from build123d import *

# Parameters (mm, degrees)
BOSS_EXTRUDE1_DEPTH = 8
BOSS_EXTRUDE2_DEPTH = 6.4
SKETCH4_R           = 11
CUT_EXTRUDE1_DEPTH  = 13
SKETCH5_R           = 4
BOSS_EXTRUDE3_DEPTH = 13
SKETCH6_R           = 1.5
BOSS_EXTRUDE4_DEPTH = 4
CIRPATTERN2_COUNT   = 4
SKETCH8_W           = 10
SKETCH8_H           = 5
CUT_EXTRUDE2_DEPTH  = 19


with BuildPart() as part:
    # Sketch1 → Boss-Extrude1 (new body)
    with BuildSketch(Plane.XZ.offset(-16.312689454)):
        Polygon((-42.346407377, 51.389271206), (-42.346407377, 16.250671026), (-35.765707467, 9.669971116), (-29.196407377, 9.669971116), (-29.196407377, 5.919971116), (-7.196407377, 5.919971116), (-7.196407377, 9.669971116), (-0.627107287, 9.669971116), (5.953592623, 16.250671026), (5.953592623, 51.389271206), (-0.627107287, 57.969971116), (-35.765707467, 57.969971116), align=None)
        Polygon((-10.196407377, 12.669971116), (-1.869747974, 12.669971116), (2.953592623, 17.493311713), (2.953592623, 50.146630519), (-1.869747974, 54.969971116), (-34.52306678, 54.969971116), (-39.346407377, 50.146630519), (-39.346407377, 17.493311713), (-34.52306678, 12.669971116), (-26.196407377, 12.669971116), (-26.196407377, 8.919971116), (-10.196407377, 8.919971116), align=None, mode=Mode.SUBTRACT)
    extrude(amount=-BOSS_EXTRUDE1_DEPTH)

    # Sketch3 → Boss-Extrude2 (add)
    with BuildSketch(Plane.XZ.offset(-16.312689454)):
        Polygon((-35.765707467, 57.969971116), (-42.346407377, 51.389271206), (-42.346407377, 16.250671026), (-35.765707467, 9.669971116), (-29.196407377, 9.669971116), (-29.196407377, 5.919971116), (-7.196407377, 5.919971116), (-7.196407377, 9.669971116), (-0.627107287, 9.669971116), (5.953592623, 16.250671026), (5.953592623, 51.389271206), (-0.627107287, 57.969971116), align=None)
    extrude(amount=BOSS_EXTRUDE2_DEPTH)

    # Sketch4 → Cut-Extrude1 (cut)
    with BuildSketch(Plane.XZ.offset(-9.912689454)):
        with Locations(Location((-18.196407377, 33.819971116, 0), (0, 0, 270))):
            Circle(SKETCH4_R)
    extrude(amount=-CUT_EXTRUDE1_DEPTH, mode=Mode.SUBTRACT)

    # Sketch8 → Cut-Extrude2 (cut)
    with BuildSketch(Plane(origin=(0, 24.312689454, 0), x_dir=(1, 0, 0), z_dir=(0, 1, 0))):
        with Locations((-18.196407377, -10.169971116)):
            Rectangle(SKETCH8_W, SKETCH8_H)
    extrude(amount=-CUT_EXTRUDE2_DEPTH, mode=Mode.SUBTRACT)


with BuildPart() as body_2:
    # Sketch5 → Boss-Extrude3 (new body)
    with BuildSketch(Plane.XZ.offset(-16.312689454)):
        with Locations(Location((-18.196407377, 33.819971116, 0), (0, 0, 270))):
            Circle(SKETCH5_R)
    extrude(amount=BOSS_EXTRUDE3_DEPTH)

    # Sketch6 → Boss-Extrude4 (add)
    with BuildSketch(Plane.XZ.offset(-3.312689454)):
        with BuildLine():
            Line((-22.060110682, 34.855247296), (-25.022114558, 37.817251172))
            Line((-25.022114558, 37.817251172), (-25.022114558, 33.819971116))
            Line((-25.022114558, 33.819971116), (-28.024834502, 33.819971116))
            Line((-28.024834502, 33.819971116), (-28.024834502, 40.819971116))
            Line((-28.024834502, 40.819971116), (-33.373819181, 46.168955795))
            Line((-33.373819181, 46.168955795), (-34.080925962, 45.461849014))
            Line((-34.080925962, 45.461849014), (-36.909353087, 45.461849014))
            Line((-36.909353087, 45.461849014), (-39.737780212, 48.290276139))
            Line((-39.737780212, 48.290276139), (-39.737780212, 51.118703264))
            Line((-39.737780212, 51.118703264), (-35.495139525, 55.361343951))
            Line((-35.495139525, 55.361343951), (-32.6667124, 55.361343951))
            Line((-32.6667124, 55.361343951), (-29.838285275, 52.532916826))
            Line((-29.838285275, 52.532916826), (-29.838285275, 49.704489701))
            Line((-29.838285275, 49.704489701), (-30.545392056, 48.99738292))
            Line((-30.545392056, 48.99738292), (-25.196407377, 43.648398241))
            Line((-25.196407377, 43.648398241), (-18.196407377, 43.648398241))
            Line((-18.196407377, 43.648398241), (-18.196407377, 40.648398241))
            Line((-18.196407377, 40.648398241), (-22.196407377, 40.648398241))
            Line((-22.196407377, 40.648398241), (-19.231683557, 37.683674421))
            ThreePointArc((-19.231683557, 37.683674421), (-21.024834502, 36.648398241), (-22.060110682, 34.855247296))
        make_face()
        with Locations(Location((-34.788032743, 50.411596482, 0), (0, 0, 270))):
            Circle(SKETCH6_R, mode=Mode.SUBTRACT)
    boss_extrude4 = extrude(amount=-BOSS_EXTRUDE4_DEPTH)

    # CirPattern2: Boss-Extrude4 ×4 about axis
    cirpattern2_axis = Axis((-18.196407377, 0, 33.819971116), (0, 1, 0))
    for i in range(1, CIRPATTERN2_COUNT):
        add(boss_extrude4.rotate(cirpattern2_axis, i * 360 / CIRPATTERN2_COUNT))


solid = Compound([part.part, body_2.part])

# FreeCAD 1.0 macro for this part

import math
import FreeCAD as App
import Part
import Sketcher

V = App.Vector
Q = App.Units.Quantity

doc = App.newDocument("Part")
params = doc.addObject("Spreadsheet::Sheet", "Params")
for row, (alias, value) in enumerate([
    ("sketch1_width", "22 mm"),
    ("sketch1_width2", "16 mm"),
    ("sketch1_height", "3.75 mm"),
    ("pad1_length", "8 mm"),
    ("sketch2_width", "22 mm"),
    ("sketch2_height", "3.75 mm"),
    ("pad2_length", "6.4 mm"),
    ("sketch3_diameter", "22 mm"),
    ("pocket1_length", "13 mm"),
    ("sketch4_width", "10 mm"),
    ("sketch4_height", "5 mm"),
    ("pocket2_length", "19 mm"),
    ("sketch5_diameter", "8 mm"),
    ("pad3_length", "13 mm"),
    ("sketch6_diameter", "3 mm"),
    ("sketch6_radius", "4 mm"),
    ("sketch6_width", "4 mm"),
    ("sketch6_width2", "7 mm"),
    ("sketch6_height", "3 mm"),
    ("pad4_length", "4 mm"),
], start=1):
    params.set(f"A{row}", alias)
    params.set(f"B{row}", "=" + value)
    params.setAlias(f"B{row}", alias)

body = doc.addObject("PartDesign::Body", "Body")

# Sketch on XZ plane
sketch1 = body.newObject("Sketcher::SketchObject", "Sketch")
sketch1.AttachmentSupport = (doc.getObject("XZ_Plane"), [""])
sketch1.MapMode = "FlatFace"
sketch1.AttachmentOffset = App.Placement(V(0, 0, -16.312689), App.Rotation())
sketch1.addGeometry(Part.LineSegment(V(-42.3, 51.4, 0), V(-42.3, 16.3, 0)), False)
sketch1.addGeometry(Part.LineSegment(V(-42.3, 16.3, 0), V(-35.8, 9.7, 0)), False)
sketch1.addGeometry(Part.LineSegment(V(-35.8, 9.7, 0), V(-29.2, 9.7, 0)), False)
sketch1.addGeometry(Part.LineSegment(V(-29.2, 9.7, 0), V(-29.2, 5.9, 0)), False)
sketch1.addGeometry(Part.LineSegment(V(-29.2, 5.9, 0), V(-7.2, 5.9, 0)), False)
sketch1.addGeometry(Part.LineSegment(V(-7.2, 5.9, 0), V(-7.2, 9.7, 0)), False)
sketch1.addGeometry(Part.LineSegment(V(-7.2, 9.7, 0), V(-0.6, 9.7, 0)), False)
sketch1.addGeometry(Part.LineSegment(V(-0.6, 9.7, 0), V(6, 16.3, 0)), False)
sketch1.addGeometry(Part.LineSegment(V(6, 16.3, 0), V(6, 51.4, 0)), False)
sketch1.addGeometry(Part.LineSegment(V(6, 51.4, 0), V(-0.6, 58, 0)), False)
sketch1.addGeometry(Part.LineSegment(V(-0.6, 58, 0), V(-35.8, 58, 0)), False)
sketch1.addGeometry(Part.LineSegment(V(-35.8, 58, 0), V(-42.3, 51.4, 0)), False)
sketch1.addGeometry(Part.LineSegment(V(-1.9, 12.7, 0), V(-10.2, 12.7, 0)), False)
sketch1.addGeometry(Part.LineSegment(V(-10.2, 12.7, 0), V(-10.2, 8.9, 0)), False)
sketch1.addGeometry(Part.LineSegment(V(-10.2, 8.9, 0), V(-26.2, 8.9, 0)), False)
sketch1.addGeometry(Part.LineSegment(V(-26.2, 8.9, 0), V(-26.2, 12.7, 0)), False)
sketch1.addGeometry(Part.LineSegment(V(-26.2, 12.7, 0), V(-34.5, 12.7, 0)), False)
sketch1.addGeometry(Part.LineSegment(V(-34.5, 12.7, 0), V(-39.3, 17.5, 0)), False)
sketch1.addGeometry(Part.LineSegment(V(-39.3, 17.5, 0), V(-39.3, 50.1, 0)), False)
sketch1.addGeometry(Part.LineSegment(V(-39.3, 50.1, 0), V(-34.5, 55, 0)), False)
sketch1.addGeometry(Part.LineSegment(V(-34.5, 55, 0), V(-1.9, 55, 0)), False)
sketch1.addGeometry(Part.LineSegment(V(-1.9, 55, 0), V(3, 50.1, 0)), False)
sketch1.addGeometry(Part.LineSegment(V(3, 50.1, 0), V(3, 17.5, 0)), False)
sketch1.addGeometry(Part.LineSegment(V(3, 17.5, 0), V(-1.9, 12.7, 0)), False)
sketch1.addConstraint(Sketcher.Constraint("Coincident", 0, 2, 1, 1))
sketch1.addConstraint(Sketcher.Constraint("Coincident", 1, 2, 2, 1))
sketch1.addConstraint(Sketcher.Constraint("Coincident", 2, 2, 3, 1))
sketch1.addConstraint(Sketcher.Constraint("Coincident", 3, 2, 4, 1))
sketch1.addConstraint(Sketcher.Constraint("Coincident", 4, 2, 5, 1))
sketch1.addConstraint(Sketcher.Constraint("Coincident", 5, 2, 6, 1))
sketch1.addConstraint(Sketcher.Constraint("Coincident", 6, 2, 7, 1))
sketch1.addConstraint(Sketcher.Constraint("Coincident", 7, 2, 8, 1))
sketch1.addConstraint(Sketcher.Constraint("Coincident", 8, 2, 9, 1))
sketch1.addConstraint(Sketcher.Constraint("Coincident", 9, 2, 10, 1))
sketch1.addConstraint(Sketcher.Constraint("Coincident", 10, 2, 11, 1))
sketch1.addConstraint(Sketcher.Constraint("Coincident", 11, 2, 0, 1))
sketch1.addConstraint(Sketcher.Constraint("Coincident", 12, 2, 13, 1))
sketch1.addConstraint(Sketcher.Constraint("Coincident", 13, 2, 14, 1))
sketch1.addConstraint(Sketcher.Constraint("Coincident", 14, 2, 15, 1))
sketch1.addConstraint(Sketcher.Constraint("Coincident", 15, 2, 16, 1))
sketch1.addConstraint(Sketcher.Constraint("Coincident", 16, 2, 17, 1))
sketch1.addConstraint(Sketcher.Constraint("Coincident", 17, 2, 18, 1))
sketch1.addConstraint(Sketcher.Constraint("Coincident", 18, 2, 19, 1))
sketch1.addConstraint(Sketcher.Constraint("Coincident", 19, 2, 20, 1))
sketch1.addConstraint(Sketcher.Constraint("Coincident", 20, 2, 21, 1))
sketch1.addConstraint(Sketcher.Constraint("Coincident", 21, 2, 22, 1))
sketch1.addConstraint(Sketcher.Constraint("Coincident", 22, 2, 23, 1))
sketch1.addConstraint(Sketcher.Constraint("Coincident", 23, 2, 12, 1))
sketch1.addConstraint(Sketcher.Constraint("Vertical", 0))
sketch1.addConstraint(Sketcher.Constraint("Horizontal", 2))
sketch1.addConstraint(Sketcher.Constraint("Vertical", 3))
sketch1.addConstraint(Sketcher.Constraint("Horizontal", 4))
sketch1.addConstraint(Sketcher.Constraint("Vertical", 5))
sketch1.addConstraint(Sketcher.Constraint("Horizontal", 6))
sketch1.addConstraint(Sketcher.Constraint("Vertical", 8))
sketch1.addConstraint(Sketcher.Constraint("Horizontal", 10))
sketch1.addConstraint(Sketcher.Constraint("Horizontal", 12))
sketch1.addConstraint(Sketcher.Constraint("Vertical", 13))
sketch1.addConstraint(Sketcher.Constraint("Horizontal", 14))
sketch1.addConstraint(Sketcher.Constraint("Vertical", 15))
sketch1.addConstraint(Sketcher.Constraint("Horizontal", 16))
sketch1.addConstraint(Sketcher.Constraint("Vertical", 18))
sketch1.addConstraint(Sketcher.Constraint("Horizontal", 20))
sketch1.addConstraint(Sketcher.Constraint("Vertical", 22))
sketch1.addConstraint(Sketcher.Constraint("Perpendicular", 1, 7))
sketch1.addConstraint(Sketcher.Constraint("Perpendicular", 7, 9))
sketch1.addConstraint(Sketcher.Constraint("Perpendicular", 9, 11))
sketch1.addConstraint(Sketcher.Constraint("Perpendicular", 11, 17))
sketch1.addConstraint(Sketcher.Constraint("Perpendicular", 17, 19))
sketch1.addConstraint(Sketcher.Constraint("Perpendicular", 19, 21))
sketch1.addConstraint(Sketcher.Constraint("Perpendicular", 21, 23))
sketch1.addConstraint(Sketcher.Constraint("Horizontal", 2, 2, 5, 2))
sketch1.addConstraint(Sketcher.Constraint("Horizontal", 0, 2, 7, 2))
sketch1.addConstraint(Sketcher.Constraint("Horizontal", 8, 2, 11, 2))
sketch1.addConstraint(Sketcher.Constraint("Horizontal", 12, 2, 15, 2))
sketch1.addConstraint(Sketcher.Constraint("Horizontal", 18, 2, 21, 2))
sketch1.addConstraint(Sketcher.Constraint("Horizontal", 17, 2, 22, 2))
sketch1.addConstraint(Sketcher.Constraint("Vertical", 6, 2, 9, 2))
sketch1.addConstraint(Sketcher.Constraint("Vertical", 1, 2, 10, 2))
sketch1.addConstraint(Sketcher.Constraint("Vertical", 16, 2, 19, 2))
sketch1.addConstraint(Sketcher.Constraint("Equal", 2, 6))
sketch1.addConstraint(Sketcher.Constraint("Equal", 12, 16))
sketch1.addConstraint(Sketcher.Constraint("Equal", 10, 0))
sketch1.addConstraint(Sketcher.Constraint("Equal", 5, 13))
sketch1.addConstraint(Sketcher.Constraint("Equal", 20, 18))
sketch1.addConstraint(Sketcher.Constraint("DistanceX", 4, 1, 4, 2, Q("22 mm")))
sketch1.addConstraint(Sketcher.Constraint("DistanceX", 14, 2, 14, 1, Q("16 mm")))
sketch1.addConstraint(Sketcher.Constraint("DistanceX", 12, 2, 5, 2, Q("3 mm")))
sketch1.addConstraint(Sketcher.Constraint("DistanceY", 5, 2, 12, 2, Q("3 mm")))
sketch1.addConstraint(Sketcher.Constraint("DistanceX", 0, 2, 17, 2, Q("3 mm")))
sketch1.addConstraint(Sketcher.Constraint("DistanceY", 3, 2, 3, 1, Q("3.75 mm")))
sketch1.addConstraint(Sketcher.Constraint("DistanceY", 6, 2, 9, 2, Q("48.3 mm")))
sketch1.addConstraint(Sketcher.Constraint("DistanceX", 2, 1, 2, 2, Q("6.5693 mm")))
sketch1.addConstraint(Sketcher.Constraint("DistanceX", 12, 2, 12, 1, Q("8.326659 mm")))
sketch1.addConstraint(Sketcher.Constraint("DistanceY", -1, 1, 0, 2, Q("16.250671 mm")))
sketch1.addConstraint(Sketcher.Constraint("DistanceX", 0, 2, -1, 1, Q("42.346407 mm")))
sketch1.setExpression("Constraints[61]", "Params.sketch1_width")
sketch1.setExpression("Constraints[62]", "Params.sketch1_width2")
sketch1.setExpression("Constraints[66]", "Params.sketch1_height")
pad1 = body.newObject("PartDesign::Pad", "Pad")
pad1.Profile = sketch1
pad1.setExpression("Length", "Params.pad1_length")
pad1.Reversed = True

# Sketch on XZ plane
sketch2 = body.newObject("Sketcher::SketchObject", "Sketch001")
sketch2.AttachmentSupport = (doc.getObject("XZ_Plane"), [""])
sketch2.MapMode = "FlatFace"
sketch2.AttachmentOffset = App.Placement(V(0, 0, -16.312689), App.Rotation())
sketch2.addGeometry(Part.LineSegment(V(-35.8, 58, 0), V(-42.3, 51.4, 0)), False)
sketch2.addGeometry(Part.LineSegment(V(-42.3, 51.4, 0), V(-42.3, 16.3, 0)), False)
sketch2.addGeometry(Part.LineSegment(V(-42.3, 16.3, 0), V(-35.8, 9.7, 0)), False)
sketch2.addGeometry(Part.LineSegment(V(-35.8, 9.7, 0), V(-29.2, 9.7, 0)), False)
sketch2.addGeometry(Part.LineSegment(V(-29.2, 9.7, 0), V(-29.2, 5.9, 0)), False)
sketch2.addGeometry(Part.LineSegment(V(-29.2, 5.9, 0), V(-7.2, 5.9, 0)), False)
sketch2.addGeometry(Part.LineSegment(V(-7.2, 5.9, 0), V(-7.2, 9.7, 0)), False)
sketch2.addGeometry(Part.LineSegment(V(-7.2, 9.7, 0), V(-0.6, 9.7, 0)), False)
sketch2.addGeometry(Part.LineSegment(V(-0.6, 9.7, 0), V(6, 16.3, 0)), False)
sketch2.addGeometry(Part.LineSegment(V(6, 16.3, 0), V(6, 51.4, 0)), False)
sketch2.addGeometry(Part.LineSegment(V(6, 51.4, 0), V(-0.6, 58, 0)), False)
sketch2.addGeometry(Part.LineSegment(V(-0.6, 58, 0), V(-35.8, 58, 0)), False)
sketch2.addConstraint(Sketcher.Constraint("Coincident", 0, 2, 1, 1))
sketch2.addConstraint(Sketcher.Constraint("Coincident", 1, 2, 2, 1))
sketch2.addConstraint(Sketcher.Constraint("Coincident", 2, 2, 3, 1))
sketch2.addConstraint(Sketcher.Constraint("Coincident", 3, 2, 4, 1))
sketch2.addConstraint(Sketcher.Constraint("Coincident", 4, 2, 5, 1))
sketch2.addConstraint(Sketcher.Constraint("Coincident", 5, 2, 6, 1))
sketch2.addConstraint(Sketcher.Constraint("Coincident", 6, 2, 7, 1))
sketch2.addConstraint(Sketcher.Constraint("Coincident", 7, 2, 8, 1))
sketch2.addConstraint(Sketcher.Constraint("Coincident", 8, 2, 9, 1))
sketch2.addConstraint(Sketcher.Constraint("Coincident", 9, 2, 10, 1))
sketch2.addConstraint(Sketcher.Constraint("Coincident", 10, 2, 11, 1))
sketch2.addConstraint(Sketcher.Constraint("Coincident", 11, 2, 0, 1))
sketch2.addConstraint(Sketcher.Constraint("Vertical", 1))
sketch2.addConstraint(Sketcher.Constraint("Horizontal", 3))
sketch2.addConstraint(Sketcher.Constraint("Vertical", 4))
sketch2.addConstraint(Sketcher.Constraint("Horizontal", 5))
sketch2.addConstraint(Sketcher.Constraint("Vertical", 6))
sketch2.addConstraint(Sketcher.Constraint("Horizontal", 7))
sketch2.addConstraint(Sketcher.Constraint("Vertical", 9))
sketch2.addConstraint(Sketcher.Constraint("Horizontal", 11))
sketch2.addConstraint(Sketcher.Constraint("Perpendicular", 0, 2))
sketch2.addConstraint(Sketcher.Constraint("Perpendicular", 2, 8))
sketch2.addConstraint(Sketcher.Constraint("Perpendicular", 8, 10))
sketch2.addConstraint(Sketcher.Constraint("Horizontal", 3, 2, 6, 2))
sketch2.addConstraint(Sketcher.Constraint("Horizontal", 1, 2, 8, 2))
sketch2.addConstraint(Sketcher.Constraint("Horizontal", 0, 2, 9, 2))
sketch2.addConstraint(Sketcher.Constraint("Vertical", 7, 2, 10, 2))
sketch2.addConstraint(Sketcher.Constraint("Vertical", 2, 2, 11, 2))
sketch2.addConstraint(Sketcher.Constraint("Equal", 3, 7))
sketch2.addConstraint(Sketcher.Constraint("Equal", 11, 1))
sketch2.addConstraint(Sketcher.Constraint("DistanceX", 5, 1, 5, 2, Q("22 mm")))
sketch2.addConstraint(Sketcher.Constraint("DistanceY", 4, 2, 4, 1, Q("3.75 mm")))
sketch2.addConstraint(Sketcher.Constraint("DistanceX", 0, 2, 9, 2, Q("48.3 mm")))
sketch2.addConstraint(Sketcher.Constraint("DistanceX", 3, 1, 3, 2, Q("6.5693 mm")))
sketch2.addConstraint(Sketcher.Constraint("DistanceY", -1, 1, 0, 2, Q("51.389271 mm")))
sketch2.addConstraint(Sketcher.Constraint("DistanceX", 0, 2, -1, 1, Q("42.346407 mm")))
sketch2.setExpression("Constraints[30]", "Params.sketch2_width")
sketch2.setExpression("Constraints[31]", "Params.sketch2_height")
pad2 = body.newObject("PartDesign::Pad", "Pad001")
pad2.Profile = sketch2
pad2.setExpression("Length", "Params.pad2_length")

# Sketch on XZ plane
sketch3 = body.newObject("Sketcher::SketchObject", "Sketch002")
sketch3.AttachmentSupport = (doc.getObject("XZ_Plane"), [""])
sketch3.MapMode = "FlatFace"
sketch3.AttachmentOffset = App.Placement(V(0, 0, -9.912689), App.Rotation())
sketch3.addGeometry(Part.Circle(V(-18, 34, 0), V(0, 0, 1), 11), False)
sketch3.addConstraint(Sketcher.Constraint("Diameter", 0, Q("22 mm")))
sketch3.addConstraint(Sketcher.Constraint("DistanceY", -1, 1, 0, 3, Q("33.819971 mm")))
sketch3.addConstraint(Sketcher.Constraint("DistanceX", 0, 3, -1, 1, Q("18.196407 mm")))
sketch3.setExpression("Constraints[0]", "Params.sketch3_diameter")
pocket1 = body.newObject("PartDesign::Pocket", "Pocket")
pocket1.Profile = sketch3
pocket1.setExpression("Length", "Params.pocket1_length")

# Sketch on XZ plane
sketch4 = body.newObject("Sketcher::SketchObject", "Sketch003")
sketch4.AttachmentSupport = (doc.getObject("XZ_Plane"), [""])
sketch4.MapMode = "FlatFace"
sketch4.AttachmentOffset = App.Placement(V(0, 0, -24.312689), App.Rotation())
sketch4.addGeometry(Part.LineSegment(V(-23.2, 7.7, 0), V(-23.2, 12.7, 0)), False)
sketch4.addGeometry(Part.LineSegment(V(-23.2, 12.7, 0), V(-13.2, 12.7, 0)), False)
sketch4.addGeometry(Part.LineSegment(V(-13.2, 12.7, 0), V(-13.2, 7.7, 0)), False)
sketch4.addGeometry(Part.LineSegment(V(-13.2, 7.7, 0), V(-23.2, 7.7, 0)), False)
sketch4.addConstraint(Sketcher.Constraint("Coincident", 0, 2, 1, 1))
sketch4.addConstraint(Sketcher.Constraint("Coincident", 1, 2, 2, 1))
sketch4.addConstraint(Sketcher.Constraint("Coincident", 2, 2, 3, 1))
sketch4.addConstraint(Sketcher.Constraint("Coincident", 3, 2, 0, 1))
sketch4.addConstraint(Sketcher.Constraint("Vertical", 0))
sketch4.addConstraint(Sketcher.Constraint("Horizontal", 1))
sketch4.addConstraint(Sketcher.Constraint("Vertical", 2))
sketch4.addConstraint(Sketcher.Constraint("Horizontal", 3))
sketch4.addConstraint(Sketcher.Constraint("DistanceX", 1, 1, 1, 2, Q("10 mm")))
sketch4.addConstraint(Sketcher.Constraint("DistanceY", 0, 1, 0, 2, Q("5 mm")))
sketch4.addConstraint(Sketcher.Constraint("DistanceY", -1, 1, 0, 2, Q("12.669971 mm")))
sketch4.addConstraint(Sketcher.Constraint("DistanceX", 0, 2, -1, 1, Q("23.196407 mm")))
sketch4.setExpression("Constraints[8]", "Params.sketch4_width")
sketch4.setExpression("Constraints[9]", "Params.sketch4_height")
pocket2 = body.newObject("PartDesign::Pocket", "Pocket001")
pocket2.Profile = sketch4
pocket2.setExpression("Length", "Params.pocket2_length")
pocket2.Reversed = True
body2 = doc.addObject("PartDesign::Body", "Body001")

# Sketch on XZ plane
sketch5 = body2.newObject("Sketcher::SketchObject", "Sketch004")
sketch5.AttachmentSupport = (doc.getObject("XZ_Plane001"), [""])
sketch5.MapMode = "FlatFace"
sketch5.AttachmentOffset = App.Placement(V(0, 0, -16.312689), App.Rotation())
sketch5.addGeometry(Part.Circle(V(-18.2, 33.8, 0), V(0, 0, 1), 4), False)
sketch5.addConstraint(Sketcher.Constraint("Diameter", 0, Q("8 mm")))
sketch5.addConstraint(Sketcher.Constraint("DistanceY", -1, 1, 0, 3, Q("33.819971 mm")))
sketch5.addConstraint(Sketcher.Constraint("DistanceX", 0, 3, -1, 1, Q("18.196407 mm")))
sketch5.setExpression("Constraints[0]", "Params.sketch5_diameter")
pad3 = body2.newObject("PartDesign::Pad", "Pad002")
pad3.Profile = sketch5
pad3.setExpression("Length", "Params.pad3_length")

# Sketch on XZ plane
sketch6 = body2.newObject("Sketcher::SketchObject", "Sketch005")
sketch6.AttachmentSupport = (doc.getObject("XZ_Plane001"), [""])
sketch6.MapMode = "FlatFace"
sketch6.AttachmentOffset = App.Placement(V(0, 0, -3.312689), App.Rotation())
sketch6.addGeometry(Part.LineSegment(V(-25, 37.8, 0), V(-22.1, 34.9, 0)), False)
sketch6.addGeometry(Part.ArcOfCircle(Part.Circle(V(-18.2, 33.8, 0), V(0, 0, 1), 4), math.radians(105), math.radians(165)), False)
sketch6.addGeometry(Part.LineSegment(V(-19.2, 37.7, 0), V(-22.2, 40.6, 0)), False)
sketch6.addGeometry(Part.LineSegment(V(-22.2, 40.6, 0), V(-18.2, 40.6, 0)), False)
sketch6.addGeometry(Part.LineSegment(V(-18.2, 40.6, 0), V(-18.2, 43.6, 0)), False)
sketch6.addGeometry(Part.LineSegment(V(-18.2, 43.6, 0), V(-25.2, 43.6, 0)), False)
sketch6.addGeometry(Part.LineSegment(V(-25.2, 43.6, 0), V(-30.5, 49, 0)), False)
sketch6.addGeometry(Part.LineSegment(V(-30.5, 49, 0), V(-29.8, 49.7, 0)), False)
sketch6.addGeometry(Part.LineSegment(V(-29.8, 49.7, 0), V(-29.8, 52.5, 0)), False)
sketch6.addGeometry(Part.LineSegment(V(-29.8, 52.5, 0), V(-32.7, 55.4, 0)), False)
sketch6.addGeometry(Part.LineSegment(V(-32.7, 55.4, 0), V(-35.5, 55.4, 0)), False)
sketch6.addGeometry(Part.LineSegment(V(-35.5, 55.4, 0), V(-39.7, 51.1, 0)), False)
sketch6.addGeometry(Part.LineSegment(V(-39.7, 51.1, 0), V(-39.7, 48.3, 0)), False)
sketch6.addGeometry(Part.LineSegment(V(-39.7, 48.3, 0), V(-36.9, 45.5, 0)), False)
sketch6.addGeometry(Part.LineSegment(V(-36.9, 45.5, 0), V(-34.1, 45.5, 0)), False)
sketch6.addGeometry(Part.LineSegment(V(-34.1, 45.5, 0), V(-33.4, 46.2, 0)), False)
sketch6.addGeometry(Part.LineSegment(V(-33.4, 46.2, 0), V(-28, 40.8, 0)), False)
sketch6.addGeometry(Part.LineSegment(V(-28, 40.8, 0), V(-28, 33.8, 0)), False)
sketch6.addGeometry(Part.LineSegment(V(-28, 33.8, 0), V(-25, 33.8, 0)), False)
sketch6.addGeometry(Part.LineSegment(V(-25, 33.8, 0), V(-25, 37.8, 0)), False)
sketch6.addGeometry(Part.Circle(V(-34.8, 50.4, 0), V(0, 0, 1), 1.5), False)
sketch6.addConstraint(Sketcher.Constraint("Coincident", 0, 2, 1, 2))
sketch6.addConstraint(Sketcher.Constraint("Coincident", 1, 1, 2, 1))
sketch6.addConstraint(Sketcher.Constraint("Coincident", 2, 2, 3, 1))
sketch6.addConstraint(Sketcher.Constraint("Coincident", 3, 2, 4, 1))
sketch6.addConstraint(Sketcher.Constraint("Coincident", 4, 2, 5, 1))
sketch6.addConstraint(Sketcher.Constraint("Coincident", 5, 2, 6, 1))
sketch6.addConstraint(Sketcher.Constraint("Coincident", 6, 2, 7, 1))
sketch6.addConstraint(Sketcher.Constraint("Coincident", 7, 2, 8, 1))
sketch6.addConstraint(Sketcher.Constraint("Coincident", 8, 2, 9, 1))
sketch6.addConstraint(Sketcher.Constraint("Coincident", 9, 2, 10, 1))
sketch6.addConstraint(Sketcher.Constraint("Coincident", 10, 2, 11, 1))
sketch6.addConstraint(Sketcher.Constraint("Coincident", 11, 2, 12, 1))
sketch6.addConstraint(Sketcher.Constraint("Coincident", 12, 2, 13, 1))
sketch6.addConstraint(Sketcher.Constraint("Coincident", 13, 2, 14, 1))
sketch6.addConstraint(Sketcher.Constraint("Coincident", 14, 2, 15, 1))
sketch6.addConstraint(Sketcher.Constraint("Coincident", 15, 2, 16, 1))
sketch6.addConstraint(Sketcher.Constraint("Coincident", 16, 2, 17, 1))
sketch6.addConstraint(Sketcher.Constraint("Coincident", 17, 2, 18, 1))
sketch6.addConstraint(Sketcher.Constraint("Coincident", 18, 2, 19, 1))
sketch6.addConstraint(Sketcher.Constraint("Coincident", 19, 2, 0, 1))
sketch6.addConstraint(Sketcher.Constraint("Horizontal", 3))
sketch6.addConstraint(Sketcher.Constraint("Vertical", 4))
sketch6.addConstraint(Sketcher.Constraint("Horizontal", 5))
sketch6.addConstraint(Sketcher.Constraint("Vertical", 8))
sketch6.addConstraint(Sketcher.Constraint("Horizontal", 10))
sketch6.addConstraint(Sketcher.Constraint("Vertical", 12))
sketch6.addConstraint(Sketcher.Constraint("Horizontal", 14))
sketch6.addConstraint(Sketcher.Constraint("Vertical", 17))
sketch6.addConstraint(Sketcher.Constraint("Horizontal", 18))
sketch6.addConstraint(Sketcher.Constraint("Vertical", 19))
sketch6.addConstraint(Sketcher.Constraint("Parallel", 0, 2))
sketch6.addConstraint(Sketcher.Constraint("Parallel", 2, 6))
sketch6.addConstraint(Sketcher.Constraint("Perpendicular", 6, 7))
sketch6.addConstraint(Sketcher.Constraint("Perpendicular", 7, 9))
sketch6.addConstraint(Sketcher.Constraint("Perpendicular", 9, 11))
sketch6.addConstraint(Sketcher.Constraint("Perpendicular", 11, 13))
sketch6.addConstraint(Sketcher.Constraint("Perpendicular", 13, 15))
sketch6.addConstraint(Sketcher.Constraint("Perpendicular", 15, 16))
sketch6.addConstraint(Sketcher.Constraint("Horizontal", 1, 3, 17, 2))
sketch6.addConstraint(Sketcher.Constraint("Vertical", 1, 3, 3, 2))
sketch6.addConstraint(Sketcher.Constraint("Equal", 10, 14))
sketch6.addConstraint(Sketcher.Constraint("Equal", 14, 8))
sketch6.addConstraint(Sketcher.Constraint("Equal", 8, 12))
sketch6.addConstraint(Sketcher.Constraint("Equal", 5, 17))
sketch6.addConstraint(Sketcher.Constraint("Equal", 9, 13))
sketch6.addConstraint(Sketcher.Constraint("Equal", 7, 15))
sketch6.addConstraint(Sketcher.Constraint("Equal", 6, 16))
sketch6.addConstraint(Sketcher.Constraint("Diameter", 20, Q("3 mm")))
sketch6.addConstraint(Sketcher.Constraint("Radius", 1, Q("4 mm")))
sketch6.addConstraint(Sketcher.Constraint("DistanceX", 3, 1, 3, 2, Q("4 mm")))
sketch6.addConstraint(Sketcher.Constraint("DistanceX", 5, 2, 5, 1, Q("7 mm")))
sketch6.addConstraint(Sketcher.Constraint("DistanceY", 4, 1, 4, 2, Q("3 mm")))
sketch6.addConstraint(Sketcher.Constraint("Angle", 0, Q("-45 deg")))
sketch6.addConstraint(Sketcher.Constraint("Distance", 7, Q("1 mm")))
sketch6.addConstraint(Sketcher.Constraint("Distance", 9, Q("4 mm")))
sketch6.addConstraint(Sketcher.Constraint("Distance", 11, Q("6 mm")))
sketch6.addConstraint(Sketcher.Constraint("DistanceX", 18, 1, 18, 2, Q("3.00272 mm")))
sketch6.addConstraint(Sketcher.Constraint("DistanceY", 19, 1, 19, 2, Q("3.99728 mm")))
sketch6.addConstraint(Sketcher.Constraint("DistanceY", -1, 1, 2, 2, Q("40.648398 mm")))
sketch6.addConstraint(Sketcher.Constraint("DistanceY", 2, 2, 20, 3, Q("9.763198 mm")))
sketch6.addConstraint(Sketcher.Constraint("DistanceX", 10, 2, 10, 1, Q("2.828427 mm")))
sketch6.addConstraint(Sketcher.Constraint("DistanceX", 0, 2, -1, 1, Q("22.060111 mm")))
sketch6.addConstraint(Sketcher.Constraint("DistanceY", -1, 1, 7, 2, Q("49.70449 mm")))
sketch6.addConstraint(Sketcher.Constraint("DistanceX", 20, 3, 1, 1, Q("15.556349 mm")))
sketch6.setExpression("Constraints[47]", "Params.sketch6_diameter")
sketch6.setExpression("Constraints[48]", "Params.sketch6_radius")
sketch6.setExpression("Constraints[49]", "Params.sketch6_width")
sketch6.setExpression("Constraints[50]", "Params.sketch6_width2")
sketch6.setExpression("Constraints[51]", "Params.sketch6_height")
pad4 = body2.newObject("PartDesign::Pad", "Pad003")
pad4.Profile = sketch6
pad4.setExpression("Length", "Params.pad4_length")
pad4.Reversed = True
doc.recompute()

datumline = body2.newObject("PartDesign::Line", "DatumLine")
datumline.Placement = App.Placement(V(-18.196407, 0, 33.819971), App.Rotation(V(0, 0, 1), V(0, 1, 0)))
polarpattern = body2.newObject("PartDesign::PolarPattern", "PolarPattern")
polarpattern.Originals = [pad4]
polarpattern.Axis = (datumline, [""])
polarpattern.Angle = 360
polarpattern.Occurrences = 4
body2.Tip = polarpattern

doc.recompute()
